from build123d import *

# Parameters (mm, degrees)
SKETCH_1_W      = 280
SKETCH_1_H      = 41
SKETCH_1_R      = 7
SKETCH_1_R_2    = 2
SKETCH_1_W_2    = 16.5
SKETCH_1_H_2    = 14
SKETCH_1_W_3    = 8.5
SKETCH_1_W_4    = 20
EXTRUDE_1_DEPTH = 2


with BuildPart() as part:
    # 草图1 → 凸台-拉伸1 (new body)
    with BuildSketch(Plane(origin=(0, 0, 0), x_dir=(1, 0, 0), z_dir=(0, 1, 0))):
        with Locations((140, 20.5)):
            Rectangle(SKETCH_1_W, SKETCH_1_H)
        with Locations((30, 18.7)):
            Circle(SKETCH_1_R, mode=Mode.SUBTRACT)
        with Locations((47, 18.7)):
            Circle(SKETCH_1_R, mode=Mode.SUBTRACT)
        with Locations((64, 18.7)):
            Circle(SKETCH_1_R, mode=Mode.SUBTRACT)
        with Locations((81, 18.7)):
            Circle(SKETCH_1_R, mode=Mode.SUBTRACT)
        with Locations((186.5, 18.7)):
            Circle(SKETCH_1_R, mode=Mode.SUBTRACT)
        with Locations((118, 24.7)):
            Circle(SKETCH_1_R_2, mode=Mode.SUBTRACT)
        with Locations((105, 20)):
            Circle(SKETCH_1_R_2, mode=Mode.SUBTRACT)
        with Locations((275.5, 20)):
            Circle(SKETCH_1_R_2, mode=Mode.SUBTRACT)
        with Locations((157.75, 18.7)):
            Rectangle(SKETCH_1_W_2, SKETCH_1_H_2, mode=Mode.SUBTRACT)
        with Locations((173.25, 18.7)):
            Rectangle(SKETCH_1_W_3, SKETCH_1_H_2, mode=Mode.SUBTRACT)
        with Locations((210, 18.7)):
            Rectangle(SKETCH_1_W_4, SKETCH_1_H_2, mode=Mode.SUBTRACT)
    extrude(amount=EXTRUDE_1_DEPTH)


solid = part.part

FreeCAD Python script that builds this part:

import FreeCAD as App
import Part
import Sketcher

doc = App.newDocument("Part")
body = doc.addObject("PartDesign::Body", "Body")

sketch1 = body.newObject("Sketcher::SketchObject", "Sketch")
sketch1.AttachmentSupport = (doc.getObject("XZ_Plane"), [""])
sketch1.MapMode = "FlatFace"
sketch1.addGeometry(Part.LineSegment(App.Vector(0, -41, 0), App.Vector(0, 0, 0)), False)
sketch1.addGeometry(Part.LineSegment(App.Vector(0, 0, 0), App.Vector(280, 0, 0)), False)
sketch1.addGeometry(Part.LineSegment(App.Vector(280, 0, 0), App.Vector(280, -41, 0)), False)
sketch1.addGeometry(Part.LineSegment(App.Vector(280, -41, 0), App.Vector(0, -41, 0)), False)
sketch1.addGeometry(Part.Circle(App.Vector(30, -18.7, 0), App.Vector(0, 0, 1), 7), False)
sketch1.addGeometry(Part.Circle(App.Vector(47, -18.7, 0), App.Vector(0, 0, 1), 7), False)
sketch1.addGeometry(Part.Circle(App.Vector(64, -18.7, 0), App.Vector(0, 0, 1), 7), False)
sketch1.addGeometry(Part.Circle(App.Vector(81, -18.7, 0), App.Vector(0, 0, 1), 7), False)
sketch1.addGeometry(Part.LineSegment(App.Vector(166, -11.7, 0), App.Vector(149.5, -11.7, 0)), False)
sketch1.addGeometry(Part.LineSegment(App.Vector(149.5, -11.7, 0), App.Vector(149.5, -25.7, 0)), False)
sketch1.addGeometry(Part.LineSegment(App.Vector(149.5, -25.7, 0), App.Vector(166, -25.7, 0)), False)
sketch1.addGeometry(Part.LineSegment(App.Vector(166, -25.7, 0), App.Vector(166, -11.7, 0)), False)
sketch1.addGeometry(Part.LineSegment(App.Vector(177.5, -11.7, 0), App.Vector(169, -11.7, 0)), False)
sketch1.addGeometry(Part.LineSegment(App.Vector(169, -11.7, 0), App.Vector(169, -25.7, 0)), False)
sketch1.addGeometry(Part.LineSegment(App.Vector(169, -25.7, 0), App.Vector(177.5, -25.7, 0)), False)
sketch1.addGeometry(Part.LineSegment(App.Vector(177.5, -25.7, 0), App.Vector(177.5, -11.7, 0)), False)
sketch1.addGeometry(Part.Circle(App.Vector(186.5, -18.7, 0), App.Vector(0, 0, 1), 7), False)
sketch1.addGeometry(Part.LineSegment(App.Vector(220, -11.7, 0), App.Vector(200, -11.7, 0)), False)
sketch1.addGeometry(Part.LineSegment(App.Vector(200, -11.7, 0), App.Vector(200, -25.7, 0)), False)
sketch1.addGeometry(Part.LineSegment(App.Vector(200, -25.7, 0), App.Vector(220, -25.7, 0)), False)
sketch1.addGeometry(Part.LineSegment(App.Vector(220, -25.7, 0), App.Vector(220, -11.7, 0)), False)
sketch1.addGeometry(Part.Circle(App.Vector(105, -20, 0), App.Vector(0, 0, 1), 2), False)
sketch1.addGeometry(Part.Circle(App.Vector(118, -24.7, 0), App.Vector(0, 0, 1), 2), False)
sketch1.addGeometry(Part.Circle(App.Vector(275.5, -20, 0), App.Vector(0, 0, 1), 2), False)
sketch1.addConstraint(Sketcher.Constraint("Coincident", 0, 2, 1, 1))
sketch1.addConstraint(Sketcher.Constraint("Coincident", 1, 2, 2, 1))
sketch1.addConstraint(Sketcher.Constraint("Coincident", 2, 2, 3, 1))
sketch1.addConstraint(Sketcher.Constraint("Coincident", 3, 2, 0, 1))
sketch1.addConstraint(Sketcher.Constraint("Coincident", 8, 2, 9, 1))
sketch1.addConstraint(Sketcher.Constraint("Coincident", 9, 2, 10, 1))
sketch1.addConstraint(Sketcher.Constraint("Coincident", 10, 2, 11, 1))
sketch1.addConstraint(Sketcher.Constraint("Coincident", 11, 2, 8, 1))
sketch1.addConstraint(Sketcher.Constraint("Coincident", 12, 2, 13, 1))
sketch1.addConstraint(Sketcher.Constraint("Coincident", 13, 2, 14, 1))
sketch1.addConstraint(Sketcher.Constraint("Coincident", 14, 2, 15, 1))
sketch1.addConstraint(Sketcher.Constraint("Coincident", 15, 2, 12, 1))
sketch1.addConstraint(Sketcher.Constraint("Coincident", 17, 2, 18, 1))
sketch1.addConstraint(Sketcher.Constraint("Coincident", 18, 2, 19, 1))
sketch1.addConstraint(Sketcher.Constraint("Coincident", 19, 2, 20, 1))
sketch1.addConstraint(Sketcher.Constraint("Coincident", 20, 2, 17, 1))
sketch1.addConstraint(Sketcher.Constraint("Vertical", 0))
sketch1.addConstraint(Sketcher.Constraint("Horizontal", 1))
sketch1.addConstraint(Sketcher.Constraint("Vertical", 2))
sketch1.addConstraint(Sketcher.Constraint("Horizontal", 3))
sketch1.addConstraint(Sketcher.Constraint("Horizontal", 8))
sketch1.addConstraint(Sketcher.Constraint("Vertical", 9))
sketch1.addConstraint(Sketcher.Constraint("Horizontal", 10))
sketch1.addConstraint(Sketcher.Constraint("Vertical", 11))
sketch1.addConstraint(Sketcher.Constraint("Horizontal", 12))
sketch1.addConstraint(Sketcher.Constraint("Vertical", 13))
sketch1.addConstraint(Sketcher.Constraint("Horizontal", 14))
sketch1.addConstraint(Sketcher.Constraint("Vertical", 15))
sketch1.addConstraint(Sketcher.Constraint("Horizontal", 17))
sketch1.addConstraint(Sketcher.Constraint("Vertical", 18))
sketch1.addConstraint(Sketcher.Constraint("Horizontal", 19))
sketch1.addConstraint(Sketcher.Constraint("Vertical", 20))
sketch1.addConstraint(Sketcher.Constraint("Coincident", 0, 2, -1, 1))
sketch1.addConstraint(Sketcher.Constraint("Equal", 4, 5))
sketch1.addConstraint(Sketcher.Constraint("Equal", 5, 6))
sketch1.addConstraint(Sketcher.Constraint("Equal", 6, 7))
sketch1.addConstraint(Sketcher.Constraint("Equal", 7, 16))
sketch1.addConstraint(Sketcher.Constraint("Equal", 21, 22))
sketch1.addConstraint(Sketcher.Constraint("Equal", 22, 23))
sketch1.addConstraint(Sketcher.Constraint("Horizontal", 4, 3, 5, 3))
sketch1.addConstraint(Sketcher.Constraint("Horizontal", 5, 3, 6, 3))
sketch1.addConstraint(Sketcher.Constraint("Horizontal", 6, 3, 7, 3))
sketch1.addConstraint(Sketcher.Constraint("Horizontal", 7, 3, 16, 3))
sketch1.addConstraint(Sketcher.Constraint("Horizontal", 21, 3, 23, 3))
sketch1.addConstraint(Sketcher.Constraint("Horizontal", 11, 2, 12, 2))
sketch1.addConstraint(Sketcher.Constraint("Horizontal", 10, 2, 13, 2))
sketch1.addConstraint(Sketcher.Constraint("Horizontal", 15, 2, 17, 2))
sketch1.addConstraint(Sketcher.Constraint("Horizontal", 14, 2, 18, 2))
sketch1.addConstraint(Sketcher.Constraint("Diameter", 4, 14.0))
sketch1.addConstraint(Sketcher.Constraint("Diameter", 21, 4.0))
sketch1.addConstraint(Sketcher.Constraint("DistanceX", 1, 1, 1, 2, 280.0))
sketch1.addConstraint(Sketcher.Constraint("DistanceX", 17, 2, 17, 1, 20.0))
sketch1.addConstraint(Sketcher.Constraint("DistanceY", 0, 1, 0, 2, 41.0))
sketch1.addConstraint(Sketcher.Constraint("DistanceY", 9, 2, 9, 1, 14.0))
sketch1.addConstraint(Sketcher.Constraint("DistanceX", 8, 2, 8, 1, 16.5))
sketch1.addConstraint(Sketcher.Constraint("DistanceX", 12, 2, 12, 1, 8.5))
sketch1.addConstraint(Sketcher.Constraint("DistanceX", -1, 1, 4, 3, 30.0))
sketch1.addConstraint(Sketcher.Constraint("DistanceX", -1, 1, 5, 3, 47.0))
sketch1.addConstraint(Sketcher.Constraint("DistanceX", -1, 1, 6, 3, 64.0))
sketch1.addConstraint(Sketcher.Constraint("DistanceX", -1, 1, 7, 3, 81.0))
sketch1.addConstraint(Sketcher.Constraint("DistanceX", -1, 1, 21, 3, 105.0))
sketch1.addConstraint(Sketcher.Constraint("DistanceY", 21, 3, -1, 1, 20.0))
sketch1.addConstraint(Sketcher.Constraint("DistanceX", -1, 1, 22, 3, 118.0))
sketch1.addConstraint(Sketcher.Constraint("DistanceX", -1, 1, 10, 2, 166.0))
sketch1.addConstraint(Sketcher.Constraint("DistanceX", -1, 1, 12, 2, 169.0))
sketch1.addConstraint(Sketcher.Constraint("DistanceX", -1, 1, 17, 2, 200.0))
sketch1.addConstraint(Sketcher.Constraint("DistanceY", 22, 3, 7, 3, 6.0))
sketch1.addConstraint(Sketcher.Constraint("DistanceX", 16, 3, 23, 3, 89.0))
sketch1.addConstraint(Sketcher.Constraint("DistanceY", 22, 3, 8, 2, 13.0))
sketch1.addConstraint(Sketcher.Constraint("DistanceX", 8, 2, 16, 3, 37.0))
sketch1.addConstraint(Sketcher.Constraint("DistanceY", 4, 3, -1, 1, 18.7))
pad1 = body.newObject("PartDesign::Pad", "Pad")
pad1.Profile = sketch1
pad1.Length = 2
pad1.Reversed = True

doc.recompute()
